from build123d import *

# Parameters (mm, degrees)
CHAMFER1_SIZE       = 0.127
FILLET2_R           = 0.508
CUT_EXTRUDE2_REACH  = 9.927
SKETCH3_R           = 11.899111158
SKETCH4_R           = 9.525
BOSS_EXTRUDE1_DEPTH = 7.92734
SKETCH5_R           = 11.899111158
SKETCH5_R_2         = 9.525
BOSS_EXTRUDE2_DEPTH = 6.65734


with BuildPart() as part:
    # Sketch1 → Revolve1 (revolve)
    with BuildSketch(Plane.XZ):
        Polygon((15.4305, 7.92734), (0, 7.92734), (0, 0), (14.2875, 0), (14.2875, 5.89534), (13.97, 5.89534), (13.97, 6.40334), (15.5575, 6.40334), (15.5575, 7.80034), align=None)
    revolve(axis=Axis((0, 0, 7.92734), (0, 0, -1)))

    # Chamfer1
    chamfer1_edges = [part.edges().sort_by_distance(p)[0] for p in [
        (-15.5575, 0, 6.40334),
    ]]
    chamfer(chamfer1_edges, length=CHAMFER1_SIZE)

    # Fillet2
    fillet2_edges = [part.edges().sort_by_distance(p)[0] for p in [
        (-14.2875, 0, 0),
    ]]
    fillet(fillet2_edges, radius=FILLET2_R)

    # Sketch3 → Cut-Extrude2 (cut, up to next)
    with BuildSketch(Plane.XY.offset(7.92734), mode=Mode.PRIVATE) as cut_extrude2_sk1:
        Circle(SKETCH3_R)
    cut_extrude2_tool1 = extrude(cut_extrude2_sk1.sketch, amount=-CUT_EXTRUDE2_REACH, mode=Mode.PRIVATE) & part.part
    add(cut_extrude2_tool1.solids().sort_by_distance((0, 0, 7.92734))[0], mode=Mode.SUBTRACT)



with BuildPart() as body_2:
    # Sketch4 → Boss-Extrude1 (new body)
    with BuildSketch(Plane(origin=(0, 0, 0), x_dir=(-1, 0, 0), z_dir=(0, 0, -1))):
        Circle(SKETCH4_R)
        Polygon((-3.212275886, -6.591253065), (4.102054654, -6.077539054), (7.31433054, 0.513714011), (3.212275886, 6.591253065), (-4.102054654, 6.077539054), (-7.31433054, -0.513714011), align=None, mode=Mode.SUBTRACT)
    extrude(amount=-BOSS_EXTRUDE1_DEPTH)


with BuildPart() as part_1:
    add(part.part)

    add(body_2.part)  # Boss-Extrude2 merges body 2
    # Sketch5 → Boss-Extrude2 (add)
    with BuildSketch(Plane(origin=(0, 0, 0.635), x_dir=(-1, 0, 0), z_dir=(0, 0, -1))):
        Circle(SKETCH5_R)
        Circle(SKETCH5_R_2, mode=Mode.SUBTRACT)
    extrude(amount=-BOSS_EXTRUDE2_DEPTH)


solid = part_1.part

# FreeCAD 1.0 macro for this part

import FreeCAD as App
import Part
import Sketcher
from FreeCAD import Vector
Q = App.Units.Quantity


def edges_at(feature, points):
    """Names of the edges that pass closest to the given points."""
    edges = feature.Shape.Edges
    near = lambda p: min(range(len(edges)), key=lambda i: edges[i].distToShape(Part.Vertex(*p))[0])
    return sorted({f"Edge{near(p) + 1}" for p in points})

doc = App.newDocument("Part")
params = doc.addObject("Spreadsheet::Sheet", "Params")
for row, (alias, value) in enumerate([
    ("sketch1_height", "0.02 in"),
    ("sketch1_width", "0.5625 in"),
    ("sketch1_width2", "0.0625 in"),
    ("sketch1_height2", "0.055 in"),
    ("revolution_angle", "360 deg"),
    ("chamfer_size", "0.005 in"),
    ("fillet_radius", "0.02 in"),
    ("sketch3_diameter", "0.75 in"),
    ("pad1_length", "0.3121 in"),
    ("sketch4_diameter", "0.75 in"),
    ("pad2_length", "0.2621 in"),
], start=1):
    params.set(f"A{row}", alias)
    params.set(f"B{row}", "=" + value)
    params.setAlias(f"B{row}", alias)

body = doc.addObject("PartDesign::Body", "Body")

sketch1 = body.newObject("Sketcher::SketchObject", "Sketch")
sketch1.AttachmentSupport = (doc.getObject("XZ_Plane"), [""])
sketch1.MapMode = "FlatFace"
sketch1.addGeometry(Part.LineSegment(Vector(15.4305, 7.92734, 0), Vector(0, 7.92734, 0)), False)
sketch1.addGeometry(Part.LineSegment(Vector(0, 7.92734, 0), Vector(0, 0, 0)), False)
sketch1.addGeometry(Part.LineSegment(Vector(0, 0, 0), Vector(14.2875, 0, 0)), False)
sketch1.addGeometry(Part.LineSegment(Vector(14.2875, 0, 0), Vector(14.2875, 5.89534, 0)), False)
sketch1.addGeometry(Part.LineSegment(Vector(14.2875, 5.89534, 0), Vector(13.97, 5.89534, 0)), False)
sketch1.addGeometry(Part.LineSegment(Vector(13.97, 5.89534, 0), Vector(13.97, 6.40334, 0)), False)
sketch1.addGeometry(Part.LineSegment(Vector(13.97, 6.40334, 0), Vector(15.5575, 6.40334, 0)), False)
sketch1.addGeometry(Part.LineSegment(Vector(15.5575, 6.40334, 0), Vector(15.5575, 7.80034, 0)), False)
sketch1.addGeometry(Part.LineSegment(Vector(15.5575, 7.80034, 0), Vector(15.4305, 7.92734, 0)), False)
sketch1.addConstraint(Sketcher.Constraint("Coincident", 0, 2, 1, 1))
sketch1.addConstraint(Sketcher.Constraint("Coincident", 1, 2, 2, 1))
sketch1.addConstraint(Sketcher.Constraint("Coincident", 2, 2, 3, 1))
sketch1.addConstraint(Sketcher.Constraint("Coincident", 3, 2, 4, 1))
sketch1.addConstraint(Sketcher.Constraint("Coincident", 4, 2, 5, 1))
sketch1.addConstraint(Sketcher.Constraint("Coincident", 5, 2, 6, 1))
sketch1.addConstraint(Sketcher.Constraint("Coincident", 6, 2, 7, 1))
sketch1.addConstraint(Sketcher.Constraint("Coincident", 7, 2, 8, 1))
sketch1.addConstraint(Sketcher.Constraint("Coincident", 8, 2, 0, 1))
sketch1.addConstraint(Sketcher.Constraint("Horizontal", 0))
sketch1.addConstraint(Sketcher.Constraint("Vertical", 1))
sketch1.addConstraint(Sketcher.Constraint("Horizontal", 2))
sketch1.addConstraint(Sketcher.Constraint("Vertical", 3))
sketch1.addConstraint(Sketcher.Constraint("Horizontal", 4))
sketch1.addConstraint(Sketcher.Constraint("Vertical", 5))
sketch1.addConstraint(Sketcher.Constraint("Horizontal", 6))
sketch1.addConstraint(Sketcher.Constraint("Vertical", 7))
sketch1.addConstraint(Sketcher.Constraint("Coincident", 1, 2, -1, 1))
sketch1.addConstraint(Sketcher.Constraint("Angle", 8, Q("135 deg")))
sketch1.addConstraint(Sketcher.Constraint("DistanceY", 5, 1, 5, 2, Q("0.02 in")))
sketch1.addConstraint(Sketcher.Constraint("DistanceX", 2, 1, 2, 2, Q("0.5625 in")))
sketch1.addConstraint(Sketcher.Constraint("DistanceX", 6, 1, 6, 2, Q("0.0625 in")))
sketch1.addConstraint(Sketcher.Constraint("DistanceY", 7, 1, 7, 2, Q("0.055 in")))
sketch1.addConstraint(Sketcher.Constraint("DistanceX", -1, 1, 4, 2, Q("0.55 in")))
sketch1.addConstraint(Sketcher.Constraint("DistanceY", 3, 2, 0, 2, Q("0.08 in")))
sketch1.addConstraint(Sketcher.Constraint("DistanceY", 1, 2, 1, 1, Q("0.3121 in")))
sketch1.setExpression("Constraints[19]", "Params.sketch1_height")
sketch1.setExpression("Constraints[20]", "Params.sketch1_width")
sketch1.setExpression("Constraints[21]", "Params.sketch1_width2")
sketch1.setExpression("Constraints[22]", "Params.sketch1_height2")
revolution = body.newObject("PartDesign::Revolution", "Revolution")
revolution.Profile = sketch1
revolution.ReferenceAxis = (sketch1, ["V_Axis"])
revolution.setExpression("Angle", "Params.revolution_angle")
doc.recompute()

chamfer = body.newObject("PartDesign::Chamfer", "Chamfer")
chamfer.Base = (revolution, edges_at(revolution, [(-15.557, 0, 6.403)]))
chamfer.setExpression("Size", "Params.chamfer_size")
doc.recompute()

fillet = body.newObject("PartDesign::Fillet", "Fillet")
fillet.Base = (chamfer, edges_at(chamfer, [(-14.287, 0, 0)]))
fillet.setExpression("Radius", "Params.fillet_radius")

sketch2 = body.newObject("Sketcher::SketchObject", "Sketch001")
sketch2.AttachmentSupport = (doc.getObject("XY_Plane"), [""])
sketch2.MapMode = "FlatFace"
sketch2.AttachmentOffset = App.Placement(Vector(0, 0, 0.3121 * 25.4), App.Rotation())
sketch2.addGeometry(Part.Circle(Vector(0, 0, 0), Vector(0, 0, 1), 11.899111), False)
sketch2.addConstraint(Sketcher.Constraint("Coincident", 0, 3, -1, 1))
sketch2.addConstraint(Sketcher.Constraint("Diameter", 0, 23.798222))
pocket1 = body.newObject("PartDesign::Pocket", "Pocket")
pocket1.Profile = sketch2
pocket1.Type = "UpToFirst"
body2 = doc.addObject("PartDesign::Body", "Body001")

sketch3 = body2.newObject("Sketcher::SketchObject", "Sketch002")
sketch3.AttachmentSupport = (doc.getObject("XY_Plane001"), [""])
sketch3.MapMode = "FlatFace"
sketch3.addGeometry(Part.Circle(Vector(0, 0, 0), Vector(0, 0, 1), 9.525), False)
sketch3.addGeometry(Part.LineSegment(Vector(-4.102055, -6.077539, 0), Vector(3.212276, -6.591253, 0)), False)
sketch3.addGeometry(Part.LineSegment(Vector(3.212276, -6.591253, 0), Vector(7.314331, -0.513714, 0)), False)
sketch3.addGeometry(Part.LineSegment(Vector(7.314331, -0.513714, 0), Vector(4.102055, 6.077539, 0)), False)
sketch3.addGeometry(Part.LineSegment(Vector(4.102055, 6.077539, 0), Vector(-3.212276, 6.591253, 0)), False)
sketch3.addGeometry(Part.LineSegment(Vector(-3.212276, 6.591253, 0), Vector(-7.314331, 0.513714, 0)), False)
sketch3.addGeometry(Part.LineSegment(Vector(-7.314331, 0.513714, 0), Vector(-4.102055, -6.077539, 0)), False)
sketch3.addConstraint(Sketcher.Constraint("Coincident", 1, 2, 2, 1))
sketch3.addConstraint(Sketcher.Constraint("Coincident", 2, 2, 3, 1))
sketch3.addConstraint(Sketcher.Constraint("Coincident", 3, 2, 4, 1))
sketch3.addConstraint(Sketcher.Constraint("Coincident", 4, 2, 5, 1))
sketch3.addConstraint(Sketcher.Constraint("Coincident", 5, 2, 6, 1))
sketch3.addConstraint(Sketcher.Constraint("Coincident", 6, 2, 1, 1))
sketch3.addConstraint(Sketcher.Constraint("Coincident", 0, 3, -1, 1))
sketch3.addConstraint(Sketcher.Constraint("Symmetric", 1, 2, 4, 2, -1, 1))
sketch3.addConstraint(Sketcher.Constraint("Symmetric", 2, 2, 5, 2, -1, 1))
sketch3.addConstraint(Sketcher.Constraint("Symmetric", 3, 2, 6, 2, -1, 1))
sketch3.addConstraint(Sketcher.Constraint("Equal", 1, 2))
sketch3.addConstraint(Sketcher.Constraint("Equal", 2, 3))
sketch3.addConstraint(Sketcher.Constraint("Diameter", 0, Q("0.75 in")))
sketch3.addConstraint(Sketcher.Constraint("Distance", 1, 7.332348))
sketch3.addConstraint(Sketcher.Constraint("DistanceX", -1, 1, 2, 2, 7.314331))
sketch3.addConstraint(Sketcher.Constraint("DistanceY", -1, 1, 3, 2, 6.077539))
sketch3.addConstraint(Sketcher.Constraint("DistanceY", 1, 2, 2, 2, 6.077539))
sketch3.setExpression("Constraints[12]", "Params.sketch3_diameter")
pad1 = body2.newObject("PartDesign::Pad", "Pad")
pad1.Profile = sketch3
pad1.setExpression("Length", "Params.pad1_length")
body.AllowCompound = True
doc.recompute()

boolean = body.newObject("PartDesign::Boolean", "Boolean")
boolean.Type = "Fuse"
boolean.addObjects([body2])

sketch4 = body.newObject("Sketcher::SketchObject", "Sketch003")
sketch4.AttachmentSupport = (doc.getObject("XY_Plane"), [""])
sketch4.MapMode = "FlatFace"
sketch4.AttachmentOffset = App.Placement(Vector(0, 0, 0.025 * 25.4), App.Rotation())
sketch4.addGeometry(Part.Circle(Vector(0, 0, 0), Vector(0, 0, 1), 11.899111), False)
sketch4.addGeometry(Part.Circle(Vector(0, 0, 0), Vector(0, 0, 1), 9.525), False)
sketch4.addConstraint(Sketcher.Constraint("Coincident", 0, 3, -1, 1))
sketch4.addConstraint(Sketcher.Constraint("Coincident", 1, 3, -1, 1))
sketch4.addConstraint(Sketcher.Constraint("Diameter", 1, Q("0.75 in")))
sketch4.addConstraint(Sketcher.Constraint("Diameter", 0, 23.798222))
sketch4.setExpression("Constraints[2]", "Params.sketch4_diameter")
pad2 = body.newObject("PartDesign::Pad", "Pad001")
pad2.Profile = sketch4
pad2.setExpression("Length", "Params.pad2_length")

doc.recompute()
